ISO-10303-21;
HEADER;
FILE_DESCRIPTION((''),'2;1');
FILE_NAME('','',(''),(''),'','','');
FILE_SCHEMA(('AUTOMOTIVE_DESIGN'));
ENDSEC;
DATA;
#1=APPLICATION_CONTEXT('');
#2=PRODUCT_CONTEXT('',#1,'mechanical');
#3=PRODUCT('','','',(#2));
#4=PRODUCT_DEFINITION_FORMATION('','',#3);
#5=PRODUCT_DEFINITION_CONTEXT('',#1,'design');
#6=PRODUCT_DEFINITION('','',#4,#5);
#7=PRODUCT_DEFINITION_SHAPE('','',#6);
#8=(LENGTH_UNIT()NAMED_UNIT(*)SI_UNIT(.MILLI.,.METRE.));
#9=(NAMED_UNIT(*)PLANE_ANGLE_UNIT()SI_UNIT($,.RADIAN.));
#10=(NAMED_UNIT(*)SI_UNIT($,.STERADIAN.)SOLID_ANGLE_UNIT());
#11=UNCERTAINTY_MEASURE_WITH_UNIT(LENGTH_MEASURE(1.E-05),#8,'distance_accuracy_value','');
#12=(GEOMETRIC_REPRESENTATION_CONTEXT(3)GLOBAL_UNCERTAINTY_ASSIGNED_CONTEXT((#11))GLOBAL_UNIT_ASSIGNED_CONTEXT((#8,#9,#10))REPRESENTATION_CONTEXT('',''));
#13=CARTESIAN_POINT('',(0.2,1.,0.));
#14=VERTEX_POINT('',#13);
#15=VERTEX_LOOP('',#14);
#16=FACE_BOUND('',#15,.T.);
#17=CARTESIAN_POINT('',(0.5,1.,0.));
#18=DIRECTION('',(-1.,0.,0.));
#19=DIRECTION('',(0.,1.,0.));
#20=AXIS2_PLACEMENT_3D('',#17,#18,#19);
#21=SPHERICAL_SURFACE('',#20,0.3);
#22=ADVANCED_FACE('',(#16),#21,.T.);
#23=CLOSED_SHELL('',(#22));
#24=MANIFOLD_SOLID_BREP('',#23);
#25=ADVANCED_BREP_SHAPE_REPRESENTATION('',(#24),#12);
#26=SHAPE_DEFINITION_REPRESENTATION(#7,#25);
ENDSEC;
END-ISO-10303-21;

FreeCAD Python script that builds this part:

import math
import FreeCAD as App
import Part
import Sketcher

V = App.Vector

doc = App.newDocument("Part")
body = doc.addObject("PartDesign::Body", "Body")

sketch1 = doc.addObject("Sketcher::SketchObject", "Sketch")
body.addObject(sketch1)
sketch1.AttachmentSupport = (doc.XY_Plane, [""])
sketch1.MapMode = "FlatFace"
sketch1.addGeometry([
    Part.LineSegment(V(0.2, 1, 0), V(0.8, 1, 0)),
    Part.ArcOfCircle(Part.Circle(V(0.5, 1, 0), V(0, 0, 1), 0.3), math.radians(0), math.radians(180)),
], False)
sketch1.addGeometry(Part.LineSegment(V(0.8, 1, 0), V(0.2, 1, 0)), True)
sketch1.addConstraint([
    Sketcher.Constraint("Coincident", 0, 1, 1, 2),
    Sketcher.Constraint("Coincident", 1, 1, 0, 2),
    Sketcher.Constraint("Horizontal", 0),
    Sketcher.Constraint("Horizontal", 2),
    Sketcher.Constraint("Coincident", 2, 1, 1, 1),
    Sketcher.Constraint("Horizontal", 1, 3, 0, 1),
    Sketcher.Constraint("Equal", 0, 2),
    Sketcher.Constraint("Radius", 1, 0.3),
    Sketcher.Constraint("DistanceY", -1, 1, 1, 3, 1.0),
    Sketcher.Constraint("DistanceX", -1, 1, 1, 3, 0.5),
])
revolution = doc.addObject("PartDesign::Revolution", "Revolution")
body.addObject(revolution)
revolution.Profile = sketch1
revolution.ReferenceAxis = (sketch1, ["Axis0"])
revolution.Angle = 360

doc.recompute()
